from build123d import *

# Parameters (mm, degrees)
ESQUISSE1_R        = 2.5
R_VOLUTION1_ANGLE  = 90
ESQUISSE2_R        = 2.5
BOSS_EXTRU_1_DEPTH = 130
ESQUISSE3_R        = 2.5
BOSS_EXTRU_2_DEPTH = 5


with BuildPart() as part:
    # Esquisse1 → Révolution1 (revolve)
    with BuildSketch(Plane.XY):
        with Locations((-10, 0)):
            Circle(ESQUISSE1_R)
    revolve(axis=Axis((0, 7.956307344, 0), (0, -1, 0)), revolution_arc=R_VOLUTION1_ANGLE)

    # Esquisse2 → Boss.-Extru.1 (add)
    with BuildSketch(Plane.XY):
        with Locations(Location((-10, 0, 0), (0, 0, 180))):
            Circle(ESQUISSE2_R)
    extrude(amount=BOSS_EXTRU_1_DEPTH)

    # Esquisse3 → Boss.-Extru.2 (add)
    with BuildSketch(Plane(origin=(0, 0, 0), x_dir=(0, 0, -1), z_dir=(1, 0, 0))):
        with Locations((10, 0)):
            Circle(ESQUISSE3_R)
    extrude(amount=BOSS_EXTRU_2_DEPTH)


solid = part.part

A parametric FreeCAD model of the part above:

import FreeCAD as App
import Part
import Sketcher
from FreeCAD import Vector
Q = App.Units.Quantity

doc = App.newDocument("Part")
params = doc.addObject("Spreadsheet::Sheet", "Params")
for row, (alias, value) in enumerate([
    ("sketch1_diameter", "5 mm"),
    ("revolution_angle", "90 deg"),
    ("sketch2_diameter", "5 mm"),
    ("pad1_length", "130 mm"),
    ("sketch3_diameter", "5 mm"),
    ("pad2_length", "5 mm"),
], start=1):
    params.set(f"A{row}", alias)
    params.set(f"B{row}", "=" + value)
    params.setAlias(f"B{row}", alias)

body = doc.addObject("PartDesign::Body", "Body")

# Sketch on XY plane
sketch1 = body.newObject("Sketcher::SketchObject", "Sketch")
sketch1.AttachmentSupport = (doc.getObject("XY_Plane"), [""])
sketch1.MapMode = "FlatFace"
sketch1.addGeometry(Part.Circle(Vector(-10, 0, 0), Vector(0, 0, 1), 2.5), False)
sketch1.addConstraint([
    Sketcher.Constraint("PointOnObject", 0, 3, -1),
    Sketcher.Constraint("Diameter", 0, Q("5 mm")),
    Sketcher.Constraint("DistanceX", 0, 3, -1, 1, Q("10 mm")),
])
sketch1.setExpression("Constraints[1]", "Params.sketch1_diameter")
revolution = body.newObject("PartDesign::Revolution", "Revolution")
revolution.Profile = sketch1
revolution.ReferenceAxis = (sketch1, ["V_Axis"])
revolution.setExpression("Angle", "Params.revolution_angle")
revolution.Reversed = True

# Sketch on XY plane
sketch2 = body.newObject("Sketcher::SketchObject", "Sketch001")
sketch2.AttachmentSupport = (doc.getObject("XY_Plane"), [""])
sketch2.MapMode = "FlatFace"
sketch2.addGeometry(Part.Circle(Vector(-10, 0, 0), Vector(0, 0, 1), 2.5), False)
sketch2.addConstraint([
    Sketcher.Constraint("PointOnObject", 0, 3, -1),
    Sketcher.Constraint("Diameter", 0, Q("5 mm")),
    Sketcher.Constraint("DistanceX", 0, 3, -1, 1, Q("10 mm")),
])
sketch2.setExpression("Constraints[1]", "Params.sketch2_diameter")
pad1 = body.newObject("PartDesign::Pad", "Pad")
pad1.Profile = sketch2
pad1.setExpression("Length", "Params.pad1_length")

# Sketch on YZ plane
sketch3 = body.newObject("Sketcher::SketchObject", "Sketch002")
sketch3.AttachmentSupport = (doc.getObject("YZ_Plane"), [""])
sketch3.MapMode = "FlatFace"
sketch3.addGeometry(Part.Circle(Vector(0, -10, 0), Vector(0, 0, 1), 2.5), False)
sketch3.addConstraint([
    Sketcher.Constraint("PointOnObject", 0, 3, -2),
    Sketcher.Constraint("Diameter", 0, Q("5 mm")),
    Sketcher.Constraint("DistanceY", 0, 3, -1, 1, Q("10 mm")),
])
sketch3.setExpression("Constraints[1]", "Params.sketch3_diameter")
pad2 = body.newObject("PartDesign::Pad", "Pad001")
pad2.Profile = sketch3
pad2.setExpression("Length", "Params.pad2_length")

doc.recompute()
